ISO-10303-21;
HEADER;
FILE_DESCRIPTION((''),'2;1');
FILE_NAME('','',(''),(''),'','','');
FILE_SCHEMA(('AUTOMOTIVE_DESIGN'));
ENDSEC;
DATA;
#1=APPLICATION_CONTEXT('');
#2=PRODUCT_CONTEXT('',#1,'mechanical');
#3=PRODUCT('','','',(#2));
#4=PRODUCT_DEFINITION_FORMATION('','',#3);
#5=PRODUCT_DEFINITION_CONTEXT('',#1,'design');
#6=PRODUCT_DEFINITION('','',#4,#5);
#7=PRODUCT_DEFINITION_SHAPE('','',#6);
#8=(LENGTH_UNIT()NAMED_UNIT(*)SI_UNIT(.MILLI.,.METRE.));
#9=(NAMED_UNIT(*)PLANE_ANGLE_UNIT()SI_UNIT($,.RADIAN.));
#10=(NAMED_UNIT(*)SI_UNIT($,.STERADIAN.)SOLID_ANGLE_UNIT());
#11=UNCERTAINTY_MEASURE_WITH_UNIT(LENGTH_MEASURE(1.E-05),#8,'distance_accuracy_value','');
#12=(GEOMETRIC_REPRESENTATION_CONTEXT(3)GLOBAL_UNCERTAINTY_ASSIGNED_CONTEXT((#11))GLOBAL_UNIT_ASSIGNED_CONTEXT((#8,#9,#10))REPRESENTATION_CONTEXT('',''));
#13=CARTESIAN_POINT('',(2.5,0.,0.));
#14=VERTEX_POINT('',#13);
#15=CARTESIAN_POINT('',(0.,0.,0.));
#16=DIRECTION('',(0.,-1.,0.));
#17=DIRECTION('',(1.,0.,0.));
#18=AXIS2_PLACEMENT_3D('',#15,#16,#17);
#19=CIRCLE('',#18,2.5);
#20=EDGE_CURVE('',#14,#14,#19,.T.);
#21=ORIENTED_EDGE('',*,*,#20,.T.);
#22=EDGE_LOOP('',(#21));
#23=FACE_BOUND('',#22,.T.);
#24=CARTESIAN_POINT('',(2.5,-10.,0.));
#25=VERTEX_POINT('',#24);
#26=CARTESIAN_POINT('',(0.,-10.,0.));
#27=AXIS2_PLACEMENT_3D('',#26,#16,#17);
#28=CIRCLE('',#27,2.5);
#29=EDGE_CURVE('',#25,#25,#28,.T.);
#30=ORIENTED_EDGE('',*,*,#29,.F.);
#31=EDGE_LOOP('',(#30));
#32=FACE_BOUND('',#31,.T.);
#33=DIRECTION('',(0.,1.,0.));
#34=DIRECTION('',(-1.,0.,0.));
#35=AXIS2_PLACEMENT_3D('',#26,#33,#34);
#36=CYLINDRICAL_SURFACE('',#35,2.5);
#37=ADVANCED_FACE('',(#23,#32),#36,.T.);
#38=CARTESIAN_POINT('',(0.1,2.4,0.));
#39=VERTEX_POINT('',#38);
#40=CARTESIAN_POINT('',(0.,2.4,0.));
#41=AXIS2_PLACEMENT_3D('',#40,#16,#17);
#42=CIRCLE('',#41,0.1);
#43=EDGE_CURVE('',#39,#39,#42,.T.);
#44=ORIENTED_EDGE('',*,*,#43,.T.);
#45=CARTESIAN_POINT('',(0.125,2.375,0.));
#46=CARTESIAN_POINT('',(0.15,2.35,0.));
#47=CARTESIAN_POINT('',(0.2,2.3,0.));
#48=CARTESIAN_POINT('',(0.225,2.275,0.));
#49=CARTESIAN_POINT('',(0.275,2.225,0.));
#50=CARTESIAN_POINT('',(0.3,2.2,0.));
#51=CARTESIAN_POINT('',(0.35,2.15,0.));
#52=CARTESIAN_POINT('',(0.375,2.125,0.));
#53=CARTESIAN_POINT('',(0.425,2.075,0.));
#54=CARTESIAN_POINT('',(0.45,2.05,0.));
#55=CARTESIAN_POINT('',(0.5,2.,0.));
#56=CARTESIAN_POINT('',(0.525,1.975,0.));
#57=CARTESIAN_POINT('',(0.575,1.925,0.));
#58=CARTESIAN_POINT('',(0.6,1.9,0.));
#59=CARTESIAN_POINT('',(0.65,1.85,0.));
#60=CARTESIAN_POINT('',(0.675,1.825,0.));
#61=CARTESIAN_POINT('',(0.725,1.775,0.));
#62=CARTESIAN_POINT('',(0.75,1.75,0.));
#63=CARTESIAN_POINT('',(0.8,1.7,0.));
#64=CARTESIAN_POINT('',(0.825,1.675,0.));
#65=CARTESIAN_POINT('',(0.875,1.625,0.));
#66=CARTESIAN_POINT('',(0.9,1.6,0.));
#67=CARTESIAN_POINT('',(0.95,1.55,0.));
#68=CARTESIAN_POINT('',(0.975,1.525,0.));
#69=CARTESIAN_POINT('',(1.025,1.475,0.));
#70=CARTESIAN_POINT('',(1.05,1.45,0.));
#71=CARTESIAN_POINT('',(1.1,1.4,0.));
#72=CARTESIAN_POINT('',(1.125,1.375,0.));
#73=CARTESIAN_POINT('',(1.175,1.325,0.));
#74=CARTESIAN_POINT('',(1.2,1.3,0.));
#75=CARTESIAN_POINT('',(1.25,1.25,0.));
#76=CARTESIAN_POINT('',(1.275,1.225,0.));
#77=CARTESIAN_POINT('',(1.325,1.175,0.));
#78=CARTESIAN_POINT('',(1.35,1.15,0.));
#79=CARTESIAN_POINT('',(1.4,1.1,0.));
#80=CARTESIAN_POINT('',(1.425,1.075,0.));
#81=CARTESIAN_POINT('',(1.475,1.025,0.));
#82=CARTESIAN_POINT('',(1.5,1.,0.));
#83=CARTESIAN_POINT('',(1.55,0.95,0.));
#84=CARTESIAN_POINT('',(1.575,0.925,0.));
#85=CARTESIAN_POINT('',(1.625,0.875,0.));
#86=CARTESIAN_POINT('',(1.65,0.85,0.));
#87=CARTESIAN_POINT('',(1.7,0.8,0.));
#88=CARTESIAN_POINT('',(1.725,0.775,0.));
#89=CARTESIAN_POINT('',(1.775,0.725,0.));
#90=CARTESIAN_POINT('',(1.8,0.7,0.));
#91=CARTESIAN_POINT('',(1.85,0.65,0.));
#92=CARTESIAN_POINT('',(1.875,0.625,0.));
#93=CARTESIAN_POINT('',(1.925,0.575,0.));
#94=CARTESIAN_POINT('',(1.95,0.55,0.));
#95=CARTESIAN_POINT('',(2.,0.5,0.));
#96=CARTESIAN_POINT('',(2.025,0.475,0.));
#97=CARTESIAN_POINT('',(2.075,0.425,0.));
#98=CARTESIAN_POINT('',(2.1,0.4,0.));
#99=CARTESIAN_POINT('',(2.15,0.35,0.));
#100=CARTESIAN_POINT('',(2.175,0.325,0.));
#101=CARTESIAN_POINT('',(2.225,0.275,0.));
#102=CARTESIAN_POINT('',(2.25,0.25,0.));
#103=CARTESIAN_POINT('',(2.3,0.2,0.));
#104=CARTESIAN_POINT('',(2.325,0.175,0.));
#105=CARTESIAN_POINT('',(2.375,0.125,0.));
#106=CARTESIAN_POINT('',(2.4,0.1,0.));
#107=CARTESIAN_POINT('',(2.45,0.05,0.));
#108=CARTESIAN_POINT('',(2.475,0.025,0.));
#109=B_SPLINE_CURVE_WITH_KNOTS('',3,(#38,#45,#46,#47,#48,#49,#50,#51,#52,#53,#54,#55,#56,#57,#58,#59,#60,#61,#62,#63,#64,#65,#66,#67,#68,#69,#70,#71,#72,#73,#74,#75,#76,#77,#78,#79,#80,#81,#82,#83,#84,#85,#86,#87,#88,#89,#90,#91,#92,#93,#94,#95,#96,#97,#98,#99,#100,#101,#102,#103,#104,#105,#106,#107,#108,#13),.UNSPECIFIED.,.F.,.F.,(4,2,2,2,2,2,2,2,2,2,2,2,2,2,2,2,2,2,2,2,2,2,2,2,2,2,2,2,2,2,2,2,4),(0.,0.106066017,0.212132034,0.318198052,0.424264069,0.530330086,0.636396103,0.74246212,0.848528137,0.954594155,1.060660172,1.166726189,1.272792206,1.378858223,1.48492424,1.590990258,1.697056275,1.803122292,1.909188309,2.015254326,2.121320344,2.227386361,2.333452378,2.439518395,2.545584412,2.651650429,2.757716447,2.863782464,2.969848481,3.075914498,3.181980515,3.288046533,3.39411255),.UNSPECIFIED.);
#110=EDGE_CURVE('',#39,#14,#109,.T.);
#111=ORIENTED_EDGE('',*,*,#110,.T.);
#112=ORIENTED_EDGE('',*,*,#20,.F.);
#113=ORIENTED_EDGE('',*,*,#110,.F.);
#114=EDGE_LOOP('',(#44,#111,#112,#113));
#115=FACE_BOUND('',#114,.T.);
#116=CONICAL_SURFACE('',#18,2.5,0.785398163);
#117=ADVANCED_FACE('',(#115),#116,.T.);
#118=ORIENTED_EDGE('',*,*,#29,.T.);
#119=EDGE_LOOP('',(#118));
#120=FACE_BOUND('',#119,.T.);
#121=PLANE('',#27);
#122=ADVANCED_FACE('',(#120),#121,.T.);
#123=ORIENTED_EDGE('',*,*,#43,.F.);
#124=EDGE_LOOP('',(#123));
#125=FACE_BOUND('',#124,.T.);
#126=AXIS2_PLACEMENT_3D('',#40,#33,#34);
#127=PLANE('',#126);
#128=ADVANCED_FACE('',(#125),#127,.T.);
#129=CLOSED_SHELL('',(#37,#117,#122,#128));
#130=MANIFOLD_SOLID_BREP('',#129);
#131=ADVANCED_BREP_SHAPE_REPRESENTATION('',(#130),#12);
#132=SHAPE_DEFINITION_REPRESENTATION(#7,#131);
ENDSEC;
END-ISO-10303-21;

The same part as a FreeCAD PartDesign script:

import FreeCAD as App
import Part
import Sketcher
from FreeCAD import Vector
Q = App.Units.Quantity


def add_polygon(sketch, points):
    """Adds a closed chain of lines whose ends are joined by coincident constraints."""
    first, n = sketch.GeometryCount, len(points)
    for a, b in zip(points, points[1:] + points[:1]):
        sketch.addGeometry(Part.LineSegment(App.Vector(*a, 0), App.Vector(*b, 0)), False)
    for i in range(n):
        sketch.addConstraint(Sketcher.Constraint("Coincident", first + i, 2, first + (i + 1) % n, 1))

doc = App.newDocument("Part")
body = doc.addObject("PartDesign::Body", "Body")

# Sketch on XY plane
sketch1 = body.newObject("Sketcher::SketchObject", "Sketch")
sketch1.AttachmentSupport = (doc.getObject("XY_Plane"), [""])
sketch1.MapMode = "FlatFace"
add_polygon(sketch1, [(0, 0), (2.5, 0), (0.1, 2.4), (0, 2.4)])  # lines 0-3
sketch1.addConstraint([
    Sketcher.Constraint("Horizontal", 0),
    Sketcher.Constraint("Horizontal", 2),
    Sketcher.Constraint("Vertical", 3),
    Sketcher.Constraint("Coincident", 3, 2, -1, 1),
    Sketcher.Constraint("Angle", 1, Q("135 deg")),
    Sketcher.Constraint("DistanceX", 0, 1, 0, 2, Q("2.5 mm")),
    Sketcher.Constraint("DistanceX", 2, 2, 2, 1, Q("0.1 mm")),
])
revolution = body.newObject("PartDesign::Revolution", "Revolution")
revolution.Profile = sketch1
revolution.ReferenceAxis = (sketch1, ["V_Axis"])
revolution.Angle = 360

# Sketch on XZ plane
sketch2 = body.newObject("Sketcher::SketchObject", "Sketch001")
sketch2.AttachmentSupport = (doc.getObject("XZ_Plane"), [""])
sketch2.MapMode = "FlatFace"
sketch2.addGeometry(Part.Circle(Vector(0, 0, 0), Vector(0, 0, 1), 2.5), False)
sketch2.addConstraint([
    Sketcher.Constraint("Coincident", 0, 3, -1, 1),
    Sketcher.Constraint("Diameter", 0, Q("5 mm")),
])
pad1 = body.newObject("PartDesign::Pad", "Pad")
pad1.Profile = sketch2
pad1.Length = 10

doc.recompute()
